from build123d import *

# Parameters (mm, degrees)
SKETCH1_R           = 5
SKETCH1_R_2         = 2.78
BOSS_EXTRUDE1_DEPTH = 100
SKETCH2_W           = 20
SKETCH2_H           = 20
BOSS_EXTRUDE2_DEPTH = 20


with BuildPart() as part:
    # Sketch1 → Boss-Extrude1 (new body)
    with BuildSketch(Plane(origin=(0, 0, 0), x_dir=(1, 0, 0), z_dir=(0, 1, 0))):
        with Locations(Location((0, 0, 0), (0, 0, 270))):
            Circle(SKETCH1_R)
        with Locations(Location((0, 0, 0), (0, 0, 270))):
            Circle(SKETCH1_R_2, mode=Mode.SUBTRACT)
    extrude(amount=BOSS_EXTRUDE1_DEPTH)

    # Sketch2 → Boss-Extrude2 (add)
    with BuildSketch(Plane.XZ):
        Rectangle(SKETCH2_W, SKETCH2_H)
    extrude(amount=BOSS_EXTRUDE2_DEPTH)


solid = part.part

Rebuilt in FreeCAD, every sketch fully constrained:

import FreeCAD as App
import Part
import Sketcher
from FreeCAD import Vector


def add_polygon(sketch, points):
    """Adds a closed chain of lines whose ends are joined by coincident constraints."""
    first, n = sketch.GeometryCount, len(points)
    for a, b in zip(points, points[1:] + points[:1]):
        sketch.addGeometry(Part.LineSegment(App.Vector(*a, 0), App.Vector(*b, 0)), False)
    for i in range(n):
        sketch.addConstraint(Sketcher.Constraint("Coincident", first + i, 2, first + (i + 1) % n, 1))

doc = App.newDocument("Part")
body = doc.addObject("PartDesign::Body", "Body")

sketch1 = doc.addObject("Sketcher::SketchObject", "Sketch")
body.addObject(sketch1)
sketch1.AttachmentSupport = (doc.XZ_Plane, [""])
sketch1.MapMode = "FlatFace"
sketch1.addGeometry(Part.Circle(Vector(0, 0, 0), Vector(0, 0, 1), 5), False)
sketch1.addGeometry(Part.Circle(Vector(0, 0, 0), Vector(0, 0, 1), 2.8), False)
sketch1.addConstraint(Sketcher.Constraint("Coincident", 0, 3, -1, 1))
sketch1.addConstraint(Sketcher.Constraint("Coincident", 1, 3, -1, 1))
sketch1.addConstraint(Sketcher.Constraint("Diameter", 0, 10.0))
sketch1.addConstraint(Sketcher.Constraint("Diameter", 1, 5.56))
pad1 = doc.addObject("PartDesign::Pad", "Pad")
body.addObject(pad1)
pad1.Profile = sketch1
pad1.Length = 100
pad1.Reversed = True

sketch2 = doc.addObject("Sketcher::SketchObject", "Sketch001")
body.addObject(sketch2)
sketch2.AttachmentSupport = (doc.XZ_Plane, [""])
sketch2.MapMode = "FlatFace"
add_polygon(sketch2, [(-10, 10), (-10, -10), (10, -10), (10, 10)])
sketch2.addConstraint(Sketcher.Constraint("Vertical", 0))
sketch2.addConstraint(Sketcher.Constraint("Horizontal", 1))
sketch2.addConstraint(Sketcher.Constraint("Vertical", 2))
sketch2.addConstraint(Sketcher.Constraint("Horizontal", 3))
sketch2.addConstraint(Sketcher.Constraint("Symmetric", 0, 2, 2, 2, -1, 1))
sketch2.addConstraint(Sketcher.Constraint("Equal", 3, 0))
sketch2.addConstraint(Sketcher.Constraint("DistanceX", 1, 1, 1, 2, 20.0))
pad2 = doc.addObject("PartDesign::Pad", "Pad001")
body.addObject(pad2)
pad2.Profile = sketch2
pad2.Length = 20

doc.recompute()
